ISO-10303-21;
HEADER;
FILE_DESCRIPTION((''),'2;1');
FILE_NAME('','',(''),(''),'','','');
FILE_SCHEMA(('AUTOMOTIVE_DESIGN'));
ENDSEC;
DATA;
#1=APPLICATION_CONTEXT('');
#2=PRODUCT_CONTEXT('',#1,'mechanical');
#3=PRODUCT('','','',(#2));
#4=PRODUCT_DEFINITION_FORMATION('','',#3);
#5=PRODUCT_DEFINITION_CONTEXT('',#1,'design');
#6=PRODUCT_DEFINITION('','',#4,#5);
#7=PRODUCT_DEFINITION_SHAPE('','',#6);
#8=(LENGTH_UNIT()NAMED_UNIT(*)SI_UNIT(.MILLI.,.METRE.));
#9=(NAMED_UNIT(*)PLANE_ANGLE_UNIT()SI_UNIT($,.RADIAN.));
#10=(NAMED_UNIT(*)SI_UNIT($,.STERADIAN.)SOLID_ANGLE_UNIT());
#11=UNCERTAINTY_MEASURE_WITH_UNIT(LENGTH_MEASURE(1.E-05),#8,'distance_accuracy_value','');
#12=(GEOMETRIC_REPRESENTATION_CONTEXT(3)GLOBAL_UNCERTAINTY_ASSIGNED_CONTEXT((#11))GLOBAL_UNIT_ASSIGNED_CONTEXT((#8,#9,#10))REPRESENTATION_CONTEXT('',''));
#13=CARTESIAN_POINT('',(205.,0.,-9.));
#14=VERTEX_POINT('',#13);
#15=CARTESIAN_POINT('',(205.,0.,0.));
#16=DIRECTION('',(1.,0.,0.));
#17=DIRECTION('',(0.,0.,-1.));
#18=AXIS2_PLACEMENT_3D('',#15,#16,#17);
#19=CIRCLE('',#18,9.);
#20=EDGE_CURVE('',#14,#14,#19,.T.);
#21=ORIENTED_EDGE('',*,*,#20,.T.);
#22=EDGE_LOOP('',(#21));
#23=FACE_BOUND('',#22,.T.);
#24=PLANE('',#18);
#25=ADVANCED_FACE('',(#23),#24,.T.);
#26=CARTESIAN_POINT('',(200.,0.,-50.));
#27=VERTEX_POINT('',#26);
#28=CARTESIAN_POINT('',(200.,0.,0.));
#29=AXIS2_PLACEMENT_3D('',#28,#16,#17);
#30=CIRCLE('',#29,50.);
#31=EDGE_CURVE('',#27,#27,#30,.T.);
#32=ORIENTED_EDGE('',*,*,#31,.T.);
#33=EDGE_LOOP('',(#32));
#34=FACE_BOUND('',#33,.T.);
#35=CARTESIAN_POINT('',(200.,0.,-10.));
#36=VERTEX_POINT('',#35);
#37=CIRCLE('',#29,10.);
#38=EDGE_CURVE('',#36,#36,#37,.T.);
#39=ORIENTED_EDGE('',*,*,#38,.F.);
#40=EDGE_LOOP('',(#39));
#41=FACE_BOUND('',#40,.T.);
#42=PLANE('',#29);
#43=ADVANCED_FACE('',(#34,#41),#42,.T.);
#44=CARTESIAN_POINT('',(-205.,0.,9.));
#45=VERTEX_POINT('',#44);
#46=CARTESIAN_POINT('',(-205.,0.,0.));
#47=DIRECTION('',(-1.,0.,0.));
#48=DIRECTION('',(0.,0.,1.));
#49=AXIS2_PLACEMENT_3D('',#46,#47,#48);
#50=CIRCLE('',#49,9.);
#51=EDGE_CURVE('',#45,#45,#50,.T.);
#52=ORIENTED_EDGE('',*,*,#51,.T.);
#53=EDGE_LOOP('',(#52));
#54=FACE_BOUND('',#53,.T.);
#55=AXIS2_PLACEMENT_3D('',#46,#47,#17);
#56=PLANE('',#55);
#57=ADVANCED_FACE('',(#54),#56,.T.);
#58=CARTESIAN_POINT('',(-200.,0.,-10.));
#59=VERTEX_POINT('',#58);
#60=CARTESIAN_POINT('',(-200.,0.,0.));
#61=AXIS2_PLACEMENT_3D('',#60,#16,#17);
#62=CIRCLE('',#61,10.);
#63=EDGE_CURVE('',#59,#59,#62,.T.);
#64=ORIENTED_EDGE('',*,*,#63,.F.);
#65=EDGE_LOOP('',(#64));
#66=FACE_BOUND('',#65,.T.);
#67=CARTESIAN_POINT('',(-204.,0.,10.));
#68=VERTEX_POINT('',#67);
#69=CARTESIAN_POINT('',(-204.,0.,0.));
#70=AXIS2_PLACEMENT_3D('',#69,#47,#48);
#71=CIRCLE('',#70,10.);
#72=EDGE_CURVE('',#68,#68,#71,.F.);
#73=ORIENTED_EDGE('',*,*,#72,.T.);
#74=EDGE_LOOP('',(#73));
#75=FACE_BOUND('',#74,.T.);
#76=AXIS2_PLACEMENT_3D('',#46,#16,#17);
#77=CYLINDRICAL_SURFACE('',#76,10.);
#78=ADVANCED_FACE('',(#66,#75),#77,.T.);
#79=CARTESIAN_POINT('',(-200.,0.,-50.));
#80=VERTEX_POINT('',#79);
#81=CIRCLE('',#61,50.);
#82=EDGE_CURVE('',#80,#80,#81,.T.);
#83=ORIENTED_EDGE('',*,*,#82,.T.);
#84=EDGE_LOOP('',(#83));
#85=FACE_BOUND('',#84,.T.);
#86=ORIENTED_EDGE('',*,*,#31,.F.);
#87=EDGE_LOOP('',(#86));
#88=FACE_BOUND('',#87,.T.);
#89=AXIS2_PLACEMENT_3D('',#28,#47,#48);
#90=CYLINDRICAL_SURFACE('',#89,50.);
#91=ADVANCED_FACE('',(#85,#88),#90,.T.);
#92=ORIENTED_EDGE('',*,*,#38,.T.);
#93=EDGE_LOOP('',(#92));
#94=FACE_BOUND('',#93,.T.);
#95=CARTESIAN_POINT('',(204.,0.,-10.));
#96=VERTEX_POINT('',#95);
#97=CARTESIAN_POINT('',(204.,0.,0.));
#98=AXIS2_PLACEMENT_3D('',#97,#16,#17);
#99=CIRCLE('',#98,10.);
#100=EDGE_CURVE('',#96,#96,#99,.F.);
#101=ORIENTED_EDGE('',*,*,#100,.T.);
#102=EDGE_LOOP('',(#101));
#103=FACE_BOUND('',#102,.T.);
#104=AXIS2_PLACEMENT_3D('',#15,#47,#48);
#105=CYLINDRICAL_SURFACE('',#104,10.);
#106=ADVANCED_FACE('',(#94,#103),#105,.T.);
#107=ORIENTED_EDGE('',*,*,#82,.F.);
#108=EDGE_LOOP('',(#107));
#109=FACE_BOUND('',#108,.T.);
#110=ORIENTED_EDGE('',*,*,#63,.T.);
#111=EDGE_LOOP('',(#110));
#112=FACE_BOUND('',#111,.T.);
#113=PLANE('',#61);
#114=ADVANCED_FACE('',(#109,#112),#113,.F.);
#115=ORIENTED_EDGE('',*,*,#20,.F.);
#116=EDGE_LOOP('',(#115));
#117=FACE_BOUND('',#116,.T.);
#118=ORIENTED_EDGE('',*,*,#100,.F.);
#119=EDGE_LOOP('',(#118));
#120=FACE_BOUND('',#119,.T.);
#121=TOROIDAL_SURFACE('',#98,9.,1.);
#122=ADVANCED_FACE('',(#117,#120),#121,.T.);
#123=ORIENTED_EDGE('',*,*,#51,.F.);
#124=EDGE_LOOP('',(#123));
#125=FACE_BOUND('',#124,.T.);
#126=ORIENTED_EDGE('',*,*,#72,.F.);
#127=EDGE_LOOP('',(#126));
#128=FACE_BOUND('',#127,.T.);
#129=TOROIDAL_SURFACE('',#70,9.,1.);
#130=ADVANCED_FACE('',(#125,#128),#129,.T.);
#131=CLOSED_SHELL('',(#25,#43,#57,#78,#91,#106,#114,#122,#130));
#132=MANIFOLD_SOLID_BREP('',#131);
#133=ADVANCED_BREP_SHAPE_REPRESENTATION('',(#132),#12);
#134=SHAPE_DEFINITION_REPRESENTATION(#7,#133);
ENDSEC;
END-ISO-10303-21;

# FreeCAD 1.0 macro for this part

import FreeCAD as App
import Part
import Sketcher

V = App.Vector


def edges_at(feature, points):
    """Names of the edges that pass closest to the given points."""
    edges = feature.Shape.Edges
    near = lambda p: min(range(len(edges)), key=lambda i: edges[i].distToShape(Part.Vertex(*p))[0])
    return sorted({f"Edge{near(p) + 1}" for p in points})

doc = App.newDocument("Part")
params = doc.addObject("Spreadsheet::Sheet", "Params")
for row, (alias, value) in enumerate([
    ("sketch1_diameter", "100 mm"),
    ("pad1_length", "400 mm"),
    ("sketch2_diameter", "20 mm"),
    ("pad2_length", "5 mm"),
    ("fillet_radius", "1 mm"),
    ("fillet2_radius", "1 mm"),
], start=1):
    params.set(f"A{row}", alias)
    params.set(f"B{row}", "=" + value)
    params.setAlias(f"B{row}", alias)

body = doc.addObject("PartDesign::Body", "Body")

# Sketch on YZ plane
sketch1 = doc.addObject("Sketcher::SketchObject", "Sketch")
body.addObject(sketch1)
sketch1.AttachmentSupport = (doc.YZ_Plane, [""])
sketch1.MapMode = "FlatFace"
sketch1.addGeometry(Part.Circle(V(0, 0, 0), V(0, 0, 1), 50), False)
sketch1.addConstraint([
    Sketcher.Constraint("Coincident", 0, 3, -1, 1),
    Sketcher.Constraint("Diameter", 0, 100.0),
])
sketch1.setExpression("Constraints[1]", "Params.sketch1_diameter")
pad1 = doc.addObject("PartDesign::Pad", "Pad")
body.addObject(pad1)
pad1.Profile = sketch1
pad1.setExpression("Length", "Params.pad1_length")
pad1.Midplane = True

# Sketch on YZ plane
sketch2 = doc.addObject("Sketcher::SketchObject", "Sketch001")
body.addObject(sketch2)
sketch2.AttachmentSupport = (doc.YZ_Plane, [""])
sketch2.MapMode = "FlatFace"
sketch2.AttachmentOffset = App.Placement(V(0, 0, 200), App.Rotation())
sketch2.addGeometry(Part.Circle(V(0, 0, 0), V(0, 0, 1), 10), False)
sketch2.addConstraint([
    Sketcher.Constraint("Coincident", 0, 3, -1, 1),
    Sketcher.Constraint("Diameter", 0, 20.0),
])
sketch2.setExpression("Constraints[1]", "Params.sketch2_diameter")
pad2 = doc.addObject("PartDesign::Pad", "Pad001")
body.addObject(pad2)
pad2.Profile = sketch2
pad2.setExpression("Length", "Params.pad2_length")
doc.recompute()

fillet = doc.addObject("PartDesign::Fillet", "Fillet")
body.addObject(fillet)
fillet.Base = (pad2, edges_at(pad2, [(205, 0, 10)]))
fillet.setExpression("Radius", "Params.fillet_radius")
doc.recompute()

mirrored = doc.addObject("PartDesign::Mirrored", "Mirrored")
body.addObject(mirrored)
mirrored.Originals = [pad2]
mirrored.MirrorPlane = (doc.YZ_Plane, [""])
body.Tip = mirrored
doc.recompute()

fillet2 = doc.addObject("PartDesign::Fillet", "Fillet001")
body.addObject(fillet2)
fillet2.Base = (mirrored, edges_at(mirrored, [(-205, 0, 10)]))
fillet2.setExpression("Radius", "Params.fillet2_radius")

doc.recompute()
